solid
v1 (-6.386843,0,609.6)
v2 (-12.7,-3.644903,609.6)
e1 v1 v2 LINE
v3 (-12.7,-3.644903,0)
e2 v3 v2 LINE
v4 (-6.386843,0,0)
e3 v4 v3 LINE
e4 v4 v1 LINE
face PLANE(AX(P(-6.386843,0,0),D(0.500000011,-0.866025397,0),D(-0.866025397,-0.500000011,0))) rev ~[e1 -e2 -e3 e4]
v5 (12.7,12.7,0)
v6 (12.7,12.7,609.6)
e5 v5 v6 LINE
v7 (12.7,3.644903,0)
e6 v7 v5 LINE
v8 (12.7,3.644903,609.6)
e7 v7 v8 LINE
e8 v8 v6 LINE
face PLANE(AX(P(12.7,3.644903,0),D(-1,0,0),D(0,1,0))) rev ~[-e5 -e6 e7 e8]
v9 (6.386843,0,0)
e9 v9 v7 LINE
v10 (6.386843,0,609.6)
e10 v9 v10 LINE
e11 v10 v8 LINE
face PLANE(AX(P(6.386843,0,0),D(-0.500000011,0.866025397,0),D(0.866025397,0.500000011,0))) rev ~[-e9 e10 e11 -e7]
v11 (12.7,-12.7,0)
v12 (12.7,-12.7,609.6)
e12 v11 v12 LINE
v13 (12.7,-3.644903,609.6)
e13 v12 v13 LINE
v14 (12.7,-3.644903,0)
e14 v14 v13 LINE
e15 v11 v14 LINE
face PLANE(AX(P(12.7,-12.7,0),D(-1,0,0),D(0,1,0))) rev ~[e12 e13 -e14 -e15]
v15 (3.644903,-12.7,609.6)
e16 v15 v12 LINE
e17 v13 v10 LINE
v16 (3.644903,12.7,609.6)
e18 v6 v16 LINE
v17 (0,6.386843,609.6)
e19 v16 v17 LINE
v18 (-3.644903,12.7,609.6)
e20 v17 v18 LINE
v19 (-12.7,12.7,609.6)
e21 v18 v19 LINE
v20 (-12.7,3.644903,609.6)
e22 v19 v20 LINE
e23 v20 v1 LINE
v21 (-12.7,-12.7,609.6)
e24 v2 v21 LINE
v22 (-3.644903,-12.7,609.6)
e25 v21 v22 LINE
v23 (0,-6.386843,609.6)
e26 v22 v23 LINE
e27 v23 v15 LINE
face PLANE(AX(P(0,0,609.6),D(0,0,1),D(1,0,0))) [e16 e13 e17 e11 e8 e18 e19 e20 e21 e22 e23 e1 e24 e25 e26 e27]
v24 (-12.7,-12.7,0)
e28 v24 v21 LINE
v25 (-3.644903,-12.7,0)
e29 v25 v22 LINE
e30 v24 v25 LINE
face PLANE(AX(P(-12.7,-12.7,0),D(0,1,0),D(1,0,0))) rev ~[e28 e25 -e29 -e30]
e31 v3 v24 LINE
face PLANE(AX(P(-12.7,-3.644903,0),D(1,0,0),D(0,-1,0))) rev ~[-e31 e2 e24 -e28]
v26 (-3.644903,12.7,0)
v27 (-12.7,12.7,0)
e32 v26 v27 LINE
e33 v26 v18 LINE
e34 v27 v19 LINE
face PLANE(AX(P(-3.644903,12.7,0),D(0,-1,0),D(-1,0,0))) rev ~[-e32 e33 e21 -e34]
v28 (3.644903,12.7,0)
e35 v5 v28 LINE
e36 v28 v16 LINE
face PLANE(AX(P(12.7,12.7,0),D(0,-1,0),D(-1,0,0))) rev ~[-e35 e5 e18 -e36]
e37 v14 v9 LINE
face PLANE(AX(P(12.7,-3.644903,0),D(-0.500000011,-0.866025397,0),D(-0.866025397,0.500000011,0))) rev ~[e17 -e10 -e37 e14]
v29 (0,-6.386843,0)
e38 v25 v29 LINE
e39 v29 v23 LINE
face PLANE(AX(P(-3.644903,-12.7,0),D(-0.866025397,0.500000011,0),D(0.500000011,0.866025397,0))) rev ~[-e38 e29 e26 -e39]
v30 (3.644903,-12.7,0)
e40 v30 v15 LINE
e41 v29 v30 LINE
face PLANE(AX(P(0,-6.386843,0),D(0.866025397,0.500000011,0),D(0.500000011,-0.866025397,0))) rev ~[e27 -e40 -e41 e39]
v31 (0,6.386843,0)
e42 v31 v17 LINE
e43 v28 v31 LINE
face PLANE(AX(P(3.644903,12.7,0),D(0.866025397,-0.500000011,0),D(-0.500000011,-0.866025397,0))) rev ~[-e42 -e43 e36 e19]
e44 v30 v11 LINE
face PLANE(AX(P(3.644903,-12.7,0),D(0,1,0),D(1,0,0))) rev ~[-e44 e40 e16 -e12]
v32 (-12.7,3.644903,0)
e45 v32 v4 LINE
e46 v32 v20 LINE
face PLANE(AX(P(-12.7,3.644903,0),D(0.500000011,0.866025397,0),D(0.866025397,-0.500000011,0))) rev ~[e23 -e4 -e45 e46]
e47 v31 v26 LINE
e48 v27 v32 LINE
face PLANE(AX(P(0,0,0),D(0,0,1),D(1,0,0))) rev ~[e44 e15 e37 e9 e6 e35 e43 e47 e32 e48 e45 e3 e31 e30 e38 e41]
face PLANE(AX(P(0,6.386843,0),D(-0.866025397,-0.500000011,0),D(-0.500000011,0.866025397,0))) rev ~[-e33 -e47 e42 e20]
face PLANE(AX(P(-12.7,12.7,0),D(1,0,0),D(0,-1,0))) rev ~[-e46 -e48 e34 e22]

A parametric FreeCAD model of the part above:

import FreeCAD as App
import Part
import Sketcher

V = App.Vector
Q = App.Units.Quantity

doc = App.newDocument("Part")
params = doc.addObject("Spreadsheet::Sheet", "Params")
for row, (alias, value) in enumerate([
    ("pad1_length", "24 in"),
], start=1):
    params.set(f"A{row}", alias)
    params.set(f"B{row}", "=" + value)
    params.setAlias(f"B{row}", alias)

body = doc.addObject("PartDesign::Body", "Body")

sketch1 = body.newObject("Sketcher::SketchObject", "Sketch")
sketch1.AttachmentSupport = (doc.getObject("XY_Plane"), [""])
sketch1.MapMode = "FlatFace"
sketch1.addGeometry([
    Part.LineSegment(V(4, -13, 0), V(13, -13, 0)),
    Part.LineSegment(V(13, -13, 0), V(13, -4, 0)),
    Part.LineSegment(V(13, -4, 0), V(6, 0, 0)),
    Part.LineSegment(V(6, 0, 0), V(13, 4, 0)),
    Part.LineSegment(V(13, 4, 0), V(13, 13, 0)),
    Part.LineSegment(V(13, 13, 0), V(4, 13, 0)),
    Part.LineSegment(V(4, 13, 0), V(0, 6, 0)),
    Part.LineSegment(V(0, 6, 0), V(-4, 13, 0)),
    Part.LineSegment(V(-4, 13, 0), V(-13, 13, 0)),
    Part.LineSegment(V(-13, 13, 0), V(-13, 4, 0)),
    Part.LineSegment(V(-13, 4, 0), V(-6, 0, 0)),
    Part.LineSegment(V(-6, 0, 0), V(-13, -4, 0)),
    Part.LineSegment(V(-13, -4, 0), V(-13, -13, 0)),
    Part.LineSegment(V(-13, -13, 0), V(-4, -13, 0)),
    Part.LineSegment(V(-4, -13, 0), V(0, -6, 0)),
    Part.LineSegment(V(0, -6, 0), V(4, -13, 0)),
], False)
sketch1.addConstraint([
    Sketcher.Constraint("Coincident", 0, 2, 1, 1),
    Sketcher.Constraint("Coincident", 1, 2, 2, 1),
    Sketcher.Constraint("Coincident", 2, 2, 3, 1),
    Sketcher.Constraint("Coincident", 3, 2, 4, 1),
    Sketcher.Constraint("Coincident", 4, 2, 5, 1),
    Sketcher.Constraint("Coincident", 5, 2, 6, 1),
    Sketcher.Constraint("Coincident", 6, 2, 7, 1),
    Sketcher.Constraint("Coincident", 7, 2, 8, 1),
    Sketcher.Constraint("Coincident", 8, 2, 9, 1),
    Sketcher.Constraint("Coincident", 9, 2, 10, 1),
    Sketcher.Constraint("Coincident", 10, 2, 11, 1),
    Sketcher.Constraint("Coincident", 11, 2, 12, 1),
    Sketcher.Constraint("Coincident", 12, 2, 13, 1),
    Sketcher.Constraint("Coincident", 13, 2, 14, 1),
    Sketcher.Constraint("Coincident", 14, 2, 15, 1),
    Sketcher.Constraint("Coincident", 15, 2, 0, 1),
    Sketcher.Constraint("Horizontal", 0),
    Sketcher.Constraint("Vertical", 1),
    Sketcher.Constraint("Vertical", 4),
    Sketcher.Constraint("Horizontal", 5),
    Sketcher.Constraint("Horizontal", 8),
    Sketcher.Constraint("Vertical", 9),
    Sketcher.Constraint("Vertical", 12),
    Sketcher.Constraint("Horizontal", 13),
    Sketcher.Constraint("Symmetric", 0, 2, 8, 2, -1, 1),
    Sketcher.Constraint("Symmetric", 2, 2, 10, 2, -1, 1),
    Sketcher.Constraint("Symmetric", 3, 2, 11, 2, -1, 1),
    Sketcher.Constraint("Symmetric", 5, 2, 13, 2, -1, 1),
    Sketcher.Constraint("Symmetric", 6, 2, 14, 2, -1, 1),
    Sketcher.Constraint("Symmetric", 5, 2, 7, 2, -2),
    Sketcher.Constraint("Symmetric", 3, 2, 9, 2, -2),
    Sketcher.Constraint("PointOnObject", 2, 2, -1),
    Sketcher.Constraint("PointOnObject", 6, 2, -2),
    Sketcher.Constraint("Perpendicular", 2, 6),
    Sketcher.Constraint("Perpendicular", 3, 7),
    Sketcher.Constraint("Perpendicular", 11, 15),
    Sketcher.Constraint("Equal", 13, 1),
    Sketcher.Constraint("Equal", 3, 6),
    Sketcher.Constraint("Angle", 2, Q("149.999999 deg")),
    Sketcher.Constraint("DistanceY", 0, 2, 4, 2, Q("1 in")),
    Sketcher.Constraint("DistanceX", 0, 1, 0, 2, Q("0.3564999 in")),
])
pad1 = body.newObject("PartDesign::Pad", "Pad")
pad1.Profile = sketch1
pad1.setExpression("Length", "Params.pad1_length")

doc.recompute()
